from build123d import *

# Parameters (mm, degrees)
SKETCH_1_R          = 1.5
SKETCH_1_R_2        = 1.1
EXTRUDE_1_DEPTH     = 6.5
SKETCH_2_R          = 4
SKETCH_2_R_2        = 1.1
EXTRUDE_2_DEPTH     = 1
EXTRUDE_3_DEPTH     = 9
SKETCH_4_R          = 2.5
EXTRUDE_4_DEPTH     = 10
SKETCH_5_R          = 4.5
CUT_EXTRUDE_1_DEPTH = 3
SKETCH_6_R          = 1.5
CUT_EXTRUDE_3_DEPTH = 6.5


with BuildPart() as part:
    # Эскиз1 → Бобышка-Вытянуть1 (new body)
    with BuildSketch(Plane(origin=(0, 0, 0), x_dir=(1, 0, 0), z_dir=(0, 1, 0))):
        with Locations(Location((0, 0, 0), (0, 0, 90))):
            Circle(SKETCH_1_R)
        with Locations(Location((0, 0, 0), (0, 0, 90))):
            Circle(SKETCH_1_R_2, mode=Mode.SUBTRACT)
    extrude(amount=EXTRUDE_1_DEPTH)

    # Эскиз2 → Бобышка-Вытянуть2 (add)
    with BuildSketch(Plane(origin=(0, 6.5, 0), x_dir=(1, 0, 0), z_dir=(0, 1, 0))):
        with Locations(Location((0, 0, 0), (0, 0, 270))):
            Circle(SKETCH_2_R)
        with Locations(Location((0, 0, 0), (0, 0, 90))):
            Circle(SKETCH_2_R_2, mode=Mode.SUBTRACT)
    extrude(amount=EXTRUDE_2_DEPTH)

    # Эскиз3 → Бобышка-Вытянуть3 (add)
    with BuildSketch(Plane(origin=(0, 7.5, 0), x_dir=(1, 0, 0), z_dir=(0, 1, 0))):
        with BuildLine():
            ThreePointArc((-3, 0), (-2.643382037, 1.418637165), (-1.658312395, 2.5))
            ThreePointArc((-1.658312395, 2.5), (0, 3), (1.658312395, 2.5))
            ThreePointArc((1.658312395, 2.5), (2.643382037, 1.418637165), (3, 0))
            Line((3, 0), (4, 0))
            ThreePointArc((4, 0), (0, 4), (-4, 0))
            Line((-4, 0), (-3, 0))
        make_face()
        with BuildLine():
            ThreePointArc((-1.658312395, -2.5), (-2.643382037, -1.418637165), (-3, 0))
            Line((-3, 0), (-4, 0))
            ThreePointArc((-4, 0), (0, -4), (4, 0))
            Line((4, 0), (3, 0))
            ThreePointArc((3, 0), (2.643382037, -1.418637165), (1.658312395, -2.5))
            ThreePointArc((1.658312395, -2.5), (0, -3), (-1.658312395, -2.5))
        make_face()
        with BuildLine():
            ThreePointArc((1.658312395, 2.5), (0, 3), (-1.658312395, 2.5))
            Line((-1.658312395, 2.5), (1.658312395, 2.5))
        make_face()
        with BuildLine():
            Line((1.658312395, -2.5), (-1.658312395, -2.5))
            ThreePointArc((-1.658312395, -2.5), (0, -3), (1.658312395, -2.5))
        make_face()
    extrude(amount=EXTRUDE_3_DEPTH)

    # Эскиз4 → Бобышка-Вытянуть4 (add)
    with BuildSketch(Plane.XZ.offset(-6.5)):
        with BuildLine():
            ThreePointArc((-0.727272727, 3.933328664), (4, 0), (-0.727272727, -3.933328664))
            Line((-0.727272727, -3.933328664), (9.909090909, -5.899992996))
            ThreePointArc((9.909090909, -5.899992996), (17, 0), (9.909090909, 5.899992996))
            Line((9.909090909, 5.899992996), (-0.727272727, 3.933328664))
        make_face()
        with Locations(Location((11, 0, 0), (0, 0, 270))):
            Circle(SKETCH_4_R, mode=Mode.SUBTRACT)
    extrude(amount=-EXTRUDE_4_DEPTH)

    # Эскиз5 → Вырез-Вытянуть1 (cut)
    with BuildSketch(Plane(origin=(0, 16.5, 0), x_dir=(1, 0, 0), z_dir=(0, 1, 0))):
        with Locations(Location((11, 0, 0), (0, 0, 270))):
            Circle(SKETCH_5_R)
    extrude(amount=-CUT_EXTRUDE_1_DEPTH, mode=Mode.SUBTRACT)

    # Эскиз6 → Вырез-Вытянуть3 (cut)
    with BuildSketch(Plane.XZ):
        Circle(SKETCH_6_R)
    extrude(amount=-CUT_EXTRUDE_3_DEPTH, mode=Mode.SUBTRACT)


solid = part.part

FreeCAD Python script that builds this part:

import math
import FreeCAD as App
import Part
import Sketcher

V = App.Vector
Q = App.Units.Quantity

doc = App.newDocument("Part")
body = doc.addObject("PartDesign::Body", "Body")

sketch1 = doc.addObject("Sketcher::SketchObject", "Sketch")
body.addObject(sketch1)
sketch1.AttachmentSupport = (doc.XZ_Plane, [""])
sketch1.MapMode = "FlatFace"
sketch1.addGeometry([
    Part.Circle(V(0, 0, 0), V(0, 0, 1), 1.5),
    Part.Circle(V(0, 0, 0), V(0, 0, 1), 1.1),
], False)
sketch1.addConstraint([
    Sketcher.Constraint("Coincident", 0, 3, -1, 1),
    Sketcher.Constraint("Coincident", 1, 3, -1, 1),
    Sketcher.Constraint("Diameter", 0, Q("3 mm")),
    Sketcher.Constraint("Diameter", 1, Q("2.2 mm")),
])
pad1 = doc.addObject("PartDesign::Pad", "Pad")
body.addObject(pad1)
pad1.Profile = sketch1
pad1.Length = 6.5
pad1.Reversed = True

sketch2 = doc.addObject("Sketcher::SketchObject", "Sketch001")
body.addObject(sketch2)
sketch2.AttachmentSupport = (doc.XZ_Plane, [""])
sketch2.MapMode = "FlatFace"
sketch2.AttachmentOffset = App.Placement(V(0, 0, -6.5), App.Rotation())
sketch2.addGeometry([
    Part.Circle(V(0, 0, 0), V(0, 0, 1), 4),
    Part.Circle(V(0, 0, 0), V(0, 0, 1), 1.1),
], False)
sketch2.addConstraint([
    Sketcher.Constraint("Coincident", 0, 3, -1, 1),
    Sketcher.Constraint("Coincident", 1, 3, -1, 1),
    Sketcher.Constraint("Diameter", 0, Q("8 mm")),
    Sketcher.Constraint("Diameter", 1, Q("2.2 mm")),
])
pad2 = doc.addObject("PartDesign::Pad", "Pad001")
body.addObject(pad2)
pad2.Profile = sketch2
pad2.Length = 1
pad2.Reversed = True

sketch3 = doc.addObject("Sketcher::SketchObject", "Sketch002")
body.addObject(sketch3)
sketch3.AttachmentSupport = (doc.XZ_Plane, [""])
sketch3.MapMode = "FlatFace"
sketch3.AttachmentOffset = App.Placement(V(0, 0, -7.5), App.Rotation())
sketch3.addGeometry([
    Part.Circle(V(0, 0, 0), V(0, 0, 1), 4),
    Part.ArcOfCircle(Part.Circle(V(0, 0, 0), V(0, 0, 1), 3), math.radians(123.55731), math.radians(180)),
    Part.ArcOfCircle(Part.Circle(V(0, 0, 0), V(0, 0, 1), 3), math.radians(180), math.radians(236.44269)),
    Part.LineSegment(V(-1.658312, -2.5, 0), V(1.658312, -2.5, 0)),
    Part.ArcOfCircle(Part.Circle(V(0, 0, 0), V(0, 0, 1), 3), math.radians(-56.44269), math.radians(0)),
    Part.ArcOfCircle(Part.Circle(V(0, 0, 0), V(0, 0, 1), 3), math.radians(0), math.radians(56.44269)),
    Part.LineSegment(V(1.658312, 2.5, 0), V(-1.658312, 2.5, 0)),
], False)
sketch3.addConstraint([
    Sketcher.Constraint("Tangent", 1, 2, 2, 1),
    Sketcher.Constraint("Coincident", 2, 2, 3, 1),
    Sketcher.Constraint("Coincident", 3, 2, 4, 1),
    Sketcher.Constraint("Tangent", 4, 2, 5, 1),
    Sketcher.Constraint("Coincident", 5, 2, 6, 1),
    Sketcher.Constraint("Coincident", 6, 2, 1, 1),
    Sketcher.Constraint("Horizontal", 3),
    Sketcher.Constraint("Horizontal", 6),
    Sketcher.Constraint("Coincident", 0, 3, -1, 1),
    Sketcher.Constraint("Coincident", 1, 3, -1, 1),
    Sketcher.Constraint("Coincident", 4, 3, -1, 1),
    Sketcher.Constraint("Equal", 1, 2),
    Sketcher.Constraint("Equal", 2, 4),
    Sketcher.Constraint("Equal", 4, 5),
    Sketcher.Constraint("PointOnObject", 1, 2, -1),
    Sketcher.Constraint("PointOnObject", 4, 2, -1),
    Sketcher.Constraint("Vertical", 3, 2, 5, 2),
    Sketcher.Constraint("Diameter", 0, Q("8 mm")),
    Sketcher.Constraint("Radius", 1, Q("3 mm")),
    Sketcher.Constraint("DistanceY", 2, 2, -1, 1, Q("2.5 mm")),
])
pad3 = doc.addObject("PartDesign::Pad", "Pad002")
body.addObject(pad3)
pad3.Profile = sketch3
pad3.Length = 9
pad3.Reversed = True

sketch4 = doc.addObject("Sketcher::SketchObject", "Sketch003")
body.addObject(sketch4)
sketch4.AttachmentSupport = (doc.XZ_Plane, [""])
sketch4.MapMode = "FlatFace"
sketch4.AttachmentOffset = App.Placement(V(0, 0, -6.5), App.Rotation())
sketch4.addGeometry([
    Part.ArcOfCircle(Part.Circle(V(0, 0, 0), V(0, 0, 1), 4), math.radians(-100.475682), math.radians(100.475682)),
    Part.LineSegment(V(-0.727273, -3.933329, 0), V(9.909091, -5.899993, 0)),
    Part.ArcOfCircle(Part.Circle(V(11, 0, 0), V(0, 0, 1), 6), math.radians(-100.475682), math.radians(100.475682)),
    Part.LineSegment(V(9.909091, 5.899993, 0), V(-0.727273, 3.933329, 0)),
    Part.Circle(V(11, 0, 0), V(0, 0, 1), 2.5),
], False)
sketch4.addConstraint([
    Sketcher.Constraint("Tangent", 0, 1, 1, 1),
    Sketcher.Constraint("Tangent", 1, 2, 2, 1),
    Sketcher.Constraint("Tangent", 2, 2, 3, 1),
    Sketcher.Constraint("Tangent", 3, 2, 0, 2),
    Sketcher.Constraint("Coincident", 0, 3, -1, 1),
    Sketcher.Constraint("Coincident", 4, 3, 2, 3),
    Sketcher.Constraint("PointOnObject", 2, 3, -1),
    Sketcher.Constraint("Diameter", 4, Q("5 mm")),
    Sketcher.Constraint("Radius", 0, Q("4 mm")),
    Sketcher.Constraint("Radius", 2, Q("6 mm")),
    Sketcher.Constraint("DistanceX", -1, 1, 2, 3, Q("11 mm")),
])
pad4 = doc.addObject("PartDesign::Pad", "Pad003")
body.addObject(pad4)
pad4.Profile = sketch4
pad4.Length = 10
pad4.Reversed = True

sketch5 = doc.addObject("Sketcher::SketchObject", "Sketch004")
body.addObject(sketch5)
sketch5.AttachmentSupport = (doc.XZ_Plane, [""])
sketch5.MapMode = "FlatFace"
sketch5.AttachmentOffset = App.Placement(V(0, 0, -16.5), App.Rotation())
sketch5.addGeometry(Part.Circle(V(11, 0, 0), V(0, 0, 1), 4.5), False)
sketch5.addConstraint([
    Sketcher.Constraint("PointOnObject", 0, 3, -1),
    Sketcher.Constraint("Diameter", 0, Q("9 mm")),
    Sketcher.Constraint("DistanceX", -1, 1, 0, 3, Q("11 mm")),
])
pocket1 = doc.addObject("PartDesign::Pocket", "Pocket")
body.addObject(pocket1)
pocket1.Profile = sketch5
pocket1.Length = 3
pocket1.Reversed = True

sketch6 = doc.addObject("Sketcher::SketchObject", "Sketch005")
body.addObject(sketch6)
sketch6.AttachmentSupport = (doc.XZ_Plane, [""])
sketch6.MapMode = "FlatFace"
sketch6.addGeometry(Part.Circle(V(0, 0, 0), V(0, 0, 1), 1.5), False)
sketch6.addConstraint([
    Sketcher.Constraint("Coincident", 0, 3, -1, 1),
    Sketcher.Constraint("Diameter", 0, Q("3 mm")),
])
pocket2 = doc.addObject("PartDesign::Pocket", "Pocket001")
body.addObject(pocket2)
pocket2.Profile = sketch6
pocket2.Length = 6.5

doc.recompute()
